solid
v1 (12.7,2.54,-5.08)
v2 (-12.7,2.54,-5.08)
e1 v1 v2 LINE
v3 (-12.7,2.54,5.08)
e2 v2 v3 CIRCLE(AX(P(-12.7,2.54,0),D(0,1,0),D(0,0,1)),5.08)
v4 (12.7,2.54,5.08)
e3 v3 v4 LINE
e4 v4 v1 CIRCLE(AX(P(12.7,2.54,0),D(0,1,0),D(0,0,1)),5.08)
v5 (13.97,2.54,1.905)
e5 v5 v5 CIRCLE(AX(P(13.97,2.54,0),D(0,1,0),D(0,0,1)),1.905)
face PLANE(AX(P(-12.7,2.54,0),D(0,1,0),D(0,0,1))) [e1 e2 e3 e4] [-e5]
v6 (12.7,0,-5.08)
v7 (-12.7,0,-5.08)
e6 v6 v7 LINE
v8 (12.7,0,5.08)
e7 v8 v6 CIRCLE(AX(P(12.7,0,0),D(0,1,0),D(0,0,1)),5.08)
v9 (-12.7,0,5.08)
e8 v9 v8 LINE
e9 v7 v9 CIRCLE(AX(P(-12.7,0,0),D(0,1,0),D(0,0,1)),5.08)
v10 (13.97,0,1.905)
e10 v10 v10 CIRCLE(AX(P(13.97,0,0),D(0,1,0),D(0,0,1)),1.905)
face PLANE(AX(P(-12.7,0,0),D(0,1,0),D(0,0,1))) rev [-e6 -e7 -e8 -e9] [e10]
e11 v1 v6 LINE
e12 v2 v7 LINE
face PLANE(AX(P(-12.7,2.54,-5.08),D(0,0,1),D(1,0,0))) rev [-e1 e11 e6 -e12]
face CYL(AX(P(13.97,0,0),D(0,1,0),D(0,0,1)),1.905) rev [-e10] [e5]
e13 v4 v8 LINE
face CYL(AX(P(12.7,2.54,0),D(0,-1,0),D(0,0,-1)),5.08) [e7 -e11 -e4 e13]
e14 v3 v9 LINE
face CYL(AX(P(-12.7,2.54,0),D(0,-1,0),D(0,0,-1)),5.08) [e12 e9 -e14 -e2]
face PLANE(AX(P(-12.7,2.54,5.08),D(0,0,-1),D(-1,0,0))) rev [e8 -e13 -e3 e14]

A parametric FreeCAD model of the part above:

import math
import FreeCAD as App
import Part
import Sketcher

V = App.Vector
Q = App.Units.Quantity

doc = App.newDocument("Part")
params = doc.addObject("Spreadsheet::Sheet", "Params")
for row, (alias, value) in enumerate([
    ("sketch1_radius", "0.2 in"),
    ("sketch1_width", "1 in"),
    ("pad1_length", "0.1 in"),
    ("sketch2_diameter", "0.15 in"),
    ("pocket1_length", "0.1 in"),
], start=1):
    params.set(f"A{row}", alias)
    params.set(f"B{row}", "=" + value)
    params.setAlias(f"B{row}", alias)

body = doc.addObject("PartDesign::Body", "Body")

sketch1 = body.newObject("Sketcher::SketchObject", "Sketch")
sketch1.AttachmentSupport = (doc.getObject("XZ_Plane"), [""])
sketch1.MapMode = "FlatFace"
sketch1.addGeometry([
    Part.LineSegment(V(13, -5, 0), V(-13, -5, 0)),
    Part.ArcOfCircle(Part.Circle(V(-13, 0, 0), V(0, 0, 1), 5), math.radians(90), math.radians(270)),
    Part.LineSegment(V(-13, 5, 0), V(13, 5, 0)),
    Part.ArcOfCircle(Part.Circle(V(13, 0, 0), V(0, 0, 1), 5), math.radians(-90), math.radians(90)),
], False)
sketch1.addConstraint([
    Sketcher.Constraint("Tangent", 0, 2, 1, 2),
    Sketcher.Constraint("Tangent", 1, 1, 2, 1),
    Sketcher.Constraint("Tangent", 2, 2, 3, 2),
    Sketcher.Constraint("Tangent", 3, 1, 0, 1),
    Sketcher.Constraint("Horizontal", 0),
    Sketcher.Constraint("Horizontal", 2),
    Sketcher.Constraint("Symmetric", 1, 3, 3, 3, -1, 1),
    Sketcher.Constraint("Radius", 1, Q("0.2 in")),
    Sketcher.Constraint("DistanceX", 0, 2, 0, 1, Q("1 in")),
])
sketch1.setExpression("Constraints[7]", "Params.sketch1_radius")
sketch1.setExpression("Constraints[8]", "Params.sketch1_width")
pad1 = body.newObject("PartDesign::Pad", "Pad")
pad1.Profile = sketch1
pad1.setExpression("Length", "Params.pad1_length")
pad1.Reversed = True

sketch2 = body.newObject("Sketcher::SketchObject", "Sketch001")
sketch2.AttachmentSupport = (doc.getObject("XZ_Plane"), [""])
sketch2.MapMode = "FlatFace"
sketch2.AttachmentOffset = App.Placement(V(0, 0, -0.1 * 25.4), App.Rotation())
sketch2.addGeometry(Part.Circle(V(14, 0, 0), V(0, 0, 1), 1.9), False)
sketch2.addConstraint([
    Sketcher.Constraint("PointOnObject", 0, 3, -1),
    Sketcher.Constraint("Diameter", 0, Q("0.15 in")),
    Sketcher.Constraint("DistanceX", -1, 1, 0, 3, Q("0.55 in")),
])
sketch2.setExpression("Constraints[1]", "Params.sketch2_diameter")
pocket1 = body.newObject("PartDesign::Pocket", "Pocket")
pocket1.Profile = sketch2
pocket1.setExpression("Length", "Params.pocket1_length")
pocket1.Reversed = True

doc.recompute()
